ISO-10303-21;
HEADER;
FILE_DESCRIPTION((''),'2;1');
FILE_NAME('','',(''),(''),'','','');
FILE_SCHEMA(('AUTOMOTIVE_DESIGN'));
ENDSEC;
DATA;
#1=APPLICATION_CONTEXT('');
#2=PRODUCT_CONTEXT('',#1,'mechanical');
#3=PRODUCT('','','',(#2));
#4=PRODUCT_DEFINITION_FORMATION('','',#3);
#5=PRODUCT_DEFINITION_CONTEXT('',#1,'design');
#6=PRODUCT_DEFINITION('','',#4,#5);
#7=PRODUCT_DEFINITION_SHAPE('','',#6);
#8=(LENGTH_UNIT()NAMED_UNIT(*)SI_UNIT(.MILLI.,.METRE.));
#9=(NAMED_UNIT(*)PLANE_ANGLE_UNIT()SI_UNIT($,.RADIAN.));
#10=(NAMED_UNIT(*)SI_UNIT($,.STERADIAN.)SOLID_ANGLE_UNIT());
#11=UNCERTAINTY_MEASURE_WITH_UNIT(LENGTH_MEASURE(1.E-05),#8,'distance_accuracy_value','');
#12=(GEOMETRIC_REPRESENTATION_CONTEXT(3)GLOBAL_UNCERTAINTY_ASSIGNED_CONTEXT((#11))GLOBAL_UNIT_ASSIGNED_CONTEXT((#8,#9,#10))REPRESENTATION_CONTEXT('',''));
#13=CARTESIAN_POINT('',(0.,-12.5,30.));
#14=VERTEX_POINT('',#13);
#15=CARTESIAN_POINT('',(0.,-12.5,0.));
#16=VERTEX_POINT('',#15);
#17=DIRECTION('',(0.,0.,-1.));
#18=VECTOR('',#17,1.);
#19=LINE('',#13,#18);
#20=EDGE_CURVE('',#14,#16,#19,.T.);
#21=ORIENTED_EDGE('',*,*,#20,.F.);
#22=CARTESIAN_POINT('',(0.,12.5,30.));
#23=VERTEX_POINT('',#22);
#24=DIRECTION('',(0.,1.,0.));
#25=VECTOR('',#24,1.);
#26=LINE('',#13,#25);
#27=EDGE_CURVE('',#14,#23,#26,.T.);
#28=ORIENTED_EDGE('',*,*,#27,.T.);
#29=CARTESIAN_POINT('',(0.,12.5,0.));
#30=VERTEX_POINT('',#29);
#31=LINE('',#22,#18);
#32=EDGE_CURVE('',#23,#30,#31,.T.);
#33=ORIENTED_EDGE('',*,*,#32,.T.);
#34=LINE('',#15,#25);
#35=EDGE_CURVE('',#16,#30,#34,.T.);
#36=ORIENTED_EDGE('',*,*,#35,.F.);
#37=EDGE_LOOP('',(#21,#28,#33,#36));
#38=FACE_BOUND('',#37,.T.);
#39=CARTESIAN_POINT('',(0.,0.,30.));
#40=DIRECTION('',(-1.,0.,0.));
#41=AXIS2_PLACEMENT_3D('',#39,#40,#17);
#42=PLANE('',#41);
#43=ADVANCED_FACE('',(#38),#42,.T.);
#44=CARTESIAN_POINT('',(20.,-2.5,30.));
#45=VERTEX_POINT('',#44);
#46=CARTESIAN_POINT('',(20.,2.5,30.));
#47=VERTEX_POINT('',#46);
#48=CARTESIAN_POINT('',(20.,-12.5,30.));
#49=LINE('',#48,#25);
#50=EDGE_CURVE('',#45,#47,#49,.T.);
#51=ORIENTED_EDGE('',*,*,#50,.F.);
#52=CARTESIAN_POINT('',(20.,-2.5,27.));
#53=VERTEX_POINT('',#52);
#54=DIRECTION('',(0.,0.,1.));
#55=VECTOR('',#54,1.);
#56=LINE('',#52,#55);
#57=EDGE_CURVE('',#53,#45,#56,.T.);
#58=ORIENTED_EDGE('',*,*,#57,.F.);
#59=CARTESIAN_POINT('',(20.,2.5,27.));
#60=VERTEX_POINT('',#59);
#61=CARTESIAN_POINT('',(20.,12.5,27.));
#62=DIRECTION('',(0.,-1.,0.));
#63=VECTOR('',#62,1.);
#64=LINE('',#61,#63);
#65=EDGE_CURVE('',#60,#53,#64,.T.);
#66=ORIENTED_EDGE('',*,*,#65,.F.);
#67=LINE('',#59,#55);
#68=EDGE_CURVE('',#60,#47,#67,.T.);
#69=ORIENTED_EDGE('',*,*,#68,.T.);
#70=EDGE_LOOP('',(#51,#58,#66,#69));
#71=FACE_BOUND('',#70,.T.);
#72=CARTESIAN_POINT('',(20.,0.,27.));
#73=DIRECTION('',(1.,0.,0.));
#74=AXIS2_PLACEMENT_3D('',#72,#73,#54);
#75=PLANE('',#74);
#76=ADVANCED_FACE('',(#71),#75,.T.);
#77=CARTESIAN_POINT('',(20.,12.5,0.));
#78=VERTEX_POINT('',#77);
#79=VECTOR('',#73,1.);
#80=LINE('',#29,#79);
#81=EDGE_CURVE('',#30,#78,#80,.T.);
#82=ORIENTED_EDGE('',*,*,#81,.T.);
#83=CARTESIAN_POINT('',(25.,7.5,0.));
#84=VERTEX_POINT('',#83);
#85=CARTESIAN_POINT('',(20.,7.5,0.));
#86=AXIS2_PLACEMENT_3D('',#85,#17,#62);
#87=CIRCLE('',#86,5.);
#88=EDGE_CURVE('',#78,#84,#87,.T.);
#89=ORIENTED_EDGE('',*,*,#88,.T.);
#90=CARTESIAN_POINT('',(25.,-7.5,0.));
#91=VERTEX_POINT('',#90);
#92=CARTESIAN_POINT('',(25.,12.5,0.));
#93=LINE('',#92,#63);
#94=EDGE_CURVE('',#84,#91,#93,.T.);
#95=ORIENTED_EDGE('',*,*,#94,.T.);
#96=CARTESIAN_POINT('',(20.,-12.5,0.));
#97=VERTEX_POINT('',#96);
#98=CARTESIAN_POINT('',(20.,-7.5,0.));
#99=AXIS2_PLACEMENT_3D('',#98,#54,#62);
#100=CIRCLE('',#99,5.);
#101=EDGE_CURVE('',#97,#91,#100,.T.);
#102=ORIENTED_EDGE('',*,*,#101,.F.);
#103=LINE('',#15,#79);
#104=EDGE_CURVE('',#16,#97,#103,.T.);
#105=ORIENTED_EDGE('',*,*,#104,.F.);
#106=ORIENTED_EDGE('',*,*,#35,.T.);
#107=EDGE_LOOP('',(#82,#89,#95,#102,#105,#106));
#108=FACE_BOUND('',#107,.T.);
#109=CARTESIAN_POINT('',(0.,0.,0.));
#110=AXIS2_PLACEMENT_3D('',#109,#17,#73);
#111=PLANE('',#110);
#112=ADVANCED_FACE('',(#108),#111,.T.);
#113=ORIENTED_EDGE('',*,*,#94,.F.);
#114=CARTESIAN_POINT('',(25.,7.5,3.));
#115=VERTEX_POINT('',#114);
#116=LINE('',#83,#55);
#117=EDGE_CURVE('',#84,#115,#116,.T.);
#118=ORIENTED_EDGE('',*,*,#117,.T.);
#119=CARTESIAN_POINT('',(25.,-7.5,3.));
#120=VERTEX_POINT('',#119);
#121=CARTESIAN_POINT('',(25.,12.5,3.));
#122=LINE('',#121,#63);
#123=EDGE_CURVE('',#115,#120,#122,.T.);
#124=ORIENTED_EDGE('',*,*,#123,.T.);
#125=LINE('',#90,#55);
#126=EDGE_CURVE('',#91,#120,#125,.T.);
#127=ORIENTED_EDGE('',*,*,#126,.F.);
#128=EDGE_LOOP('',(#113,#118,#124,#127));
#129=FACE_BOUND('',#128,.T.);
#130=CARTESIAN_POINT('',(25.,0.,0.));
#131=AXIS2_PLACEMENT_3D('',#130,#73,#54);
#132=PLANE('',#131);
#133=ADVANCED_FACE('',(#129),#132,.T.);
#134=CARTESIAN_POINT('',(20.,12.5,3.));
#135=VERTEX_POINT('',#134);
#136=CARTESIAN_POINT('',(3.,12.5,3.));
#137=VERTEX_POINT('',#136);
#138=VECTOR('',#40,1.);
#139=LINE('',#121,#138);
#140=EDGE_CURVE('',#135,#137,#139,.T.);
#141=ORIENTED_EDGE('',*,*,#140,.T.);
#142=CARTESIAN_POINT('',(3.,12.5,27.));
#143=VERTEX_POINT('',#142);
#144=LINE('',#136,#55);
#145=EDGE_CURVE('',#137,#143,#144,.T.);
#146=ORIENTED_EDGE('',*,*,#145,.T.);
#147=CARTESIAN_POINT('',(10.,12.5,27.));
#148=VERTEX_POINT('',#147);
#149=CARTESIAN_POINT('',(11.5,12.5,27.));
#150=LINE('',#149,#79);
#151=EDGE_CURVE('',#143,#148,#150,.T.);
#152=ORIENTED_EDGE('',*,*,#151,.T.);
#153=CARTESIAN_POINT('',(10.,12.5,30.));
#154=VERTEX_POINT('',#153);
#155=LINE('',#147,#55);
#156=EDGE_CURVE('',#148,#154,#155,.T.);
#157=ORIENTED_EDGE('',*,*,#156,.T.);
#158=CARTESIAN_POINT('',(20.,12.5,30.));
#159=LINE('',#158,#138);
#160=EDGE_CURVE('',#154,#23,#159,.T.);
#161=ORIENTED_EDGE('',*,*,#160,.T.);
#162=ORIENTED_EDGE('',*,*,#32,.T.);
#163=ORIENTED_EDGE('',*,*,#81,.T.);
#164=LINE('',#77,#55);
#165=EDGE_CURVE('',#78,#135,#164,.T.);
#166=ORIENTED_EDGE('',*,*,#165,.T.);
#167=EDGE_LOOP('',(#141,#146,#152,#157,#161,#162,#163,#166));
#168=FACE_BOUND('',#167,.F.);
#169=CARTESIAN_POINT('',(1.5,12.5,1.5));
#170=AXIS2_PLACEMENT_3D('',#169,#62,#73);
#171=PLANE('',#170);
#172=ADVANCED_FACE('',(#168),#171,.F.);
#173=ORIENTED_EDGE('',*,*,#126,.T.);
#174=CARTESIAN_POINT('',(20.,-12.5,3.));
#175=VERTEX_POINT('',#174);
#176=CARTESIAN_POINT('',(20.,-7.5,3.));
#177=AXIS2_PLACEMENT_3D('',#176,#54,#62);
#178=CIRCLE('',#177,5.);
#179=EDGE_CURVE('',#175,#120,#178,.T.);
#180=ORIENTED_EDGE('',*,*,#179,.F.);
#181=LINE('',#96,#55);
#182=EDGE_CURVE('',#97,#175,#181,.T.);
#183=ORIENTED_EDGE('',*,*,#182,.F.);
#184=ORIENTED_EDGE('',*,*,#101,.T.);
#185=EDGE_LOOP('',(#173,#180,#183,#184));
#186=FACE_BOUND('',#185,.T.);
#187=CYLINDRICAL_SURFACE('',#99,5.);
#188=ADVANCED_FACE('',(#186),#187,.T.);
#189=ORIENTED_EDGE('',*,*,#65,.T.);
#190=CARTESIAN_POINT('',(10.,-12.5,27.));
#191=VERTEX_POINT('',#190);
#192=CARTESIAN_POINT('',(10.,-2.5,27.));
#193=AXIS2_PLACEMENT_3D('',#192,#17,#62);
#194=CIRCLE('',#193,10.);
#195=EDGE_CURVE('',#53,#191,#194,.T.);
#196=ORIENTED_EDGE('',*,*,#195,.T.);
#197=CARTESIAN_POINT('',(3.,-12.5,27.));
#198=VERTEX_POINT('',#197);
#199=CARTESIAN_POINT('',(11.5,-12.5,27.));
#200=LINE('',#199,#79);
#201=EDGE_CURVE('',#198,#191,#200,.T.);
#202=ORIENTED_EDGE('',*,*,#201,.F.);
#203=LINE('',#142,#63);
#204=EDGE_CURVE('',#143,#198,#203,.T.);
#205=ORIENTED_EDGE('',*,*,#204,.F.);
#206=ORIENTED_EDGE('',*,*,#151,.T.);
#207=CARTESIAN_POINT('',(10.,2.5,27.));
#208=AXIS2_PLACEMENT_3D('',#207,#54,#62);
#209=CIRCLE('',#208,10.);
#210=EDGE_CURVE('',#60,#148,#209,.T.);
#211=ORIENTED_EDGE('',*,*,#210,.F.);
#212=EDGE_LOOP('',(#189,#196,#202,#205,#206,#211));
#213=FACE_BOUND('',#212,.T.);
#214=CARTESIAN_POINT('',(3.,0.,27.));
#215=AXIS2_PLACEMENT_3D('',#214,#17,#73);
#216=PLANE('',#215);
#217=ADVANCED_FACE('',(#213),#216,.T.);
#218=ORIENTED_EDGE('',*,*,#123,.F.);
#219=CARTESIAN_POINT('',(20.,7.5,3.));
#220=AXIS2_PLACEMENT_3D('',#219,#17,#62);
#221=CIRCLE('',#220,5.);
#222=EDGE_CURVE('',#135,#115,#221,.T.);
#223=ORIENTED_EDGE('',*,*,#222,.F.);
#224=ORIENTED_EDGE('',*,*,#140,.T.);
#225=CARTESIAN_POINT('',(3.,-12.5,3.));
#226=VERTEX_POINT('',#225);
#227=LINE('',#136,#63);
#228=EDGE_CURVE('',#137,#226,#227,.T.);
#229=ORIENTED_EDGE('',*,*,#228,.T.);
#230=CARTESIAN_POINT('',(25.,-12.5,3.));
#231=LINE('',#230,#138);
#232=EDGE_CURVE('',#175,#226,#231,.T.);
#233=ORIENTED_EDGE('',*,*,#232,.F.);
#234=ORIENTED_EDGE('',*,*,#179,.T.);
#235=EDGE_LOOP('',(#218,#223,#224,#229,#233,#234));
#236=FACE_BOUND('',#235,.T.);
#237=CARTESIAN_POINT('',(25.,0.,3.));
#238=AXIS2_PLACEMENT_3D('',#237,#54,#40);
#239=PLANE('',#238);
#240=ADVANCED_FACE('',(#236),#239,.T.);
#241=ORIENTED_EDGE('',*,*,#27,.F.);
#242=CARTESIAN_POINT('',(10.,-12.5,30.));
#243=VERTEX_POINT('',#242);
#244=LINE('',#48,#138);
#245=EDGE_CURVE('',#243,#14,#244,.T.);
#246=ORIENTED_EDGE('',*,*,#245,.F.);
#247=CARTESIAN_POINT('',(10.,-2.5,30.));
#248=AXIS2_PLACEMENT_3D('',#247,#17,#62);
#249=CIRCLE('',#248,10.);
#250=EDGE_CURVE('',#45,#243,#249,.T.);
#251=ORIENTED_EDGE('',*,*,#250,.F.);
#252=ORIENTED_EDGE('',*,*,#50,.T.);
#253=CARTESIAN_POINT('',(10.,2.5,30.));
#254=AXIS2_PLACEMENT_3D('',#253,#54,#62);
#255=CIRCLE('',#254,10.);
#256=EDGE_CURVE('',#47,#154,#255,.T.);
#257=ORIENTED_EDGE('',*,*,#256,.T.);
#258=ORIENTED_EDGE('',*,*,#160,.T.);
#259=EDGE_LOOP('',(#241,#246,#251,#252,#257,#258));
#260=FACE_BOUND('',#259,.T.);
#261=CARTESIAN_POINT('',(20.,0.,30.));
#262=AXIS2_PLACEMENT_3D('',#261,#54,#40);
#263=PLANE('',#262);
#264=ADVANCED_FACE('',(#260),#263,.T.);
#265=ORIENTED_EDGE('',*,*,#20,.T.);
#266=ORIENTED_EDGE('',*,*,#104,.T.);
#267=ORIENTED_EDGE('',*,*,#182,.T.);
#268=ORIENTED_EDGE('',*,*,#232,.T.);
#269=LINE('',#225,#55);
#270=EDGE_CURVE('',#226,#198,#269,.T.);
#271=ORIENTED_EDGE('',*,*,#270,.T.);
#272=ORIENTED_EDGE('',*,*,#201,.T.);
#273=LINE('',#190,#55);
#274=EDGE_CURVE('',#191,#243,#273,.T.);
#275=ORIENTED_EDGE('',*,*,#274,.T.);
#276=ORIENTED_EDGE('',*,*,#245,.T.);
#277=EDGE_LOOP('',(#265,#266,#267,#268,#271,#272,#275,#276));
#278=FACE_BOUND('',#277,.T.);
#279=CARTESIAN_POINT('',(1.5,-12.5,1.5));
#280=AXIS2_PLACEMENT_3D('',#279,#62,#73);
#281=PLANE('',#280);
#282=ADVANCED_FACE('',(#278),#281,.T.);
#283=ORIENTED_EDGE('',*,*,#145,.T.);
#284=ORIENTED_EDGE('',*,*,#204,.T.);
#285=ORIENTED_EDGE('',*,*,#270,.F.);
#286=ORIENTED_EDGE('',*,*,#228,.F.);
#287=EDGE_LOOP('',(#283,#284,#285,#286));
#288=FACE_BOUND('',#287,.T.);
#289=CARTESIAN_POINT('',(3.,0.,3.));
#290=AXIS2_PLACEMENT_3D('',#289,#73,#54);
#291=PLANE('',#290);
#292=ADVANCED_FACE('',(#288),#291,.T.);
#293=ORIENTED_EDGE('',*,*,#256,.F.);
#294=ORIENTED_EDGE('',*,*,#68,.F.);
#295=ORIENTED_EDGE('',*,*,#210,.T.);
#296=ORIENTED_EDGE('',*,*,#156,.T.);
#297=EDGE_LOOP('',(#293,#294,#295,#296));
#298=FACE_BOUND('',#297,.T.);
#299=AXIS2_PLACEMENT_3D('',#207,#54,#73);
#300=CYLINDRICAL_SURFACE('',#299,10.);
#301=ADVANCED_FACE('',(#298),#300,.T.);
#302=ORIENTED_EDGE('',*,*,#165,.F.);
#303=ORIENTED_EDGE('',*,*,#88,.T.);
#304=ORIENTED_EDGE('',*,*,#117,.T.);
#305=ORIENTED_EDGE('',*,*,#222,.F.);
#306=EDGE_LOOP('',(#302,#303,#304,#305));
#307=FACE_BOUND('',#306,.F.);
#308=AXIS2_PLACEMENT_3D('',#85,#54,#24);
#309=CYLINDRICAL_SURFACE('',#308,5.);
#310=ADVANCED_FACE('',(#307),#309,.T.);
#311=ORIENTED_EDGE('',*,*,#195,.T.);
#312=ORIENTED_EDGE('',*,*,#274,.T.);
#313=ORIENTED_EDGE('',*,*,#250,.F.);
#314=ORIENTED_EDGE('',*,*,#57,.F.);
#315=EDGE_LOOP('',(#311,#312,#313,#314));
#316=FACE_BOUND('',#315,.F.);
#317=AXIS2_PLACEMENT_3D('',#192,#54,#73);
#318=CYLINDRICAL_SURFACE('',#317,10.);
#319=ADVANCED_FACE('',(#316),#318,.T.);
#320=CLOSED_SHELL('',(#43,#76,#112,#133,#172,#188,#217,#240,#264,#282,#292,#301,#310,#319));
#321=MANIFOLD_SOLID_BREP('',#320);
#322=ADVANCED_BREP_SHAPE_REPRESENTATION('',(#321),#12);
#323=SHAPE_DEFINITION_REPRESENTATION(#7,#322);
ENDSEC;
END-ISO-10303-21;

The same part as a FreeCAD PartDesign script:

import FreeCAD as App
import Part
import Sketcher


def edges_at(feature, points):
    """Names of the edges that pass closest to the given points."""
    edges = feature.Shape.Edges
    near = lambda p: min(range(len(edges)), key=lambda i: edges[i].distToShape(Part.Vertex(*p))[0])
    return sorted({f"Edge{near(p) + 1}" for p in points})

doc = App.newDocument("Part")
body = doc.addObject("PartDesign::Body", "Body")

sketch1 = doc.addObject("Sketcher::SketchObject", "Sketch")
body.addObject(sketch1)
sketch1.AttachmentSupport = (doc.XZ_Plane, [""])
sketch1.MapMode = "FlatFace"
sketch1.addGeometry(Part.LineSegment(App.Vector(0, 0, 0), App.Vector(25, 0, 0)), False)
sketch1.addGeometry(Part.LineSegment(App.Vector(25, 0, 0), App.Vector(25, 3, 0)), False)
sketch1.addGeometry(Part.LineSegment(App.Vector(25, 3, 0), App.Vector(3, 3, 0)), False)
sketch1.addGeometry(Part.LineSegment(App.Vector(3, 3, 0), App.Vector(3, 27, 0)), False)
sketch1.addGeometry(Part.LineSegment(App.Vector(3, 27, 0), App.Vector(20, 27, 0)), False)
sketch1.addGeometry(Part.LineSegment(App.Vector(20, 27, 0), App.Vector(20, 30, 0)), False)
sketch1.addGeometry(Part.LineSegment(App.Vector(20, 30, 0), App.Vector(0, 30, 0)), False)
sketch1.addGeometry(Part.LineSegment(App.Vector(0, 30, 0), App.Vector(0, 0, 0)), False)
sketch1.addConstraint(Sketcher.Constraint("Coincident", 0, 2, 1, 1))
sketch1.addConstraint(Sketcher.Constraint("Coincident", 1, 2, 2, 1))
sketch1.addConstraint(Sketcher.Constraint("Coincident", 2, 2, 3, 1))
sketch1.addConstraint(Sketcher.Constraint("Coincident", 3, 2, 4, 1))
sketch1.addConstraint(Sketcher.Constraint("Coincident", 4, 2, 5, 1))
sketch1.addConstraint(Sketcher.Constraint("Coincident", 5, 2, 6, 1))
sketch1.addConstraint(Sketcher.Constraint("Coincident", 6, 2, 7, 1))
sketch1.addConstraint(Sketcher.Constraint("Coincident", 7, 2, 0, 1))
sketch1.addConstraint(Sketcher.Constraint("Horizontal", 0))
sketch1.addConstraint(Sketcher.Constraint("Vertical", 1))
sketch1.addConstraint(Sketcher.Constraint("Horizontal", 2))
sketch1.addConstraint(Sketcher.Constraint("Vertical", 3))
sketch1.addConstraint(Sketcher.Constraint("Horizontal", 4))
sketch1.addConstraint(Sketcher.Constraint("Vertical", 5))
sketch1.addConstraint(Sketcher.Constraint("Horizontal", 6))
sketch1.addConstraint(Sketcher.Constraint("Vertical", 7))
sketch1.addConstraint(Sketcher.Constraint("Coincident", 7, 2, -1, 1))
sketch1.addConstraint(Sketcher.Constraint("Equal", 1, 5))
sketch1.addConstraint(Sketcher.Constraint("DistanceX", 0, 1, 0, 2, 25.0))
sketch1.addConstraint(Sketcher.Constraint("DistanceX", 2, 2, 2, 1, 22.0))
sketch1.addConstraint(Sketcher.Constraint("DistanceX", 4, 1, 4, 2, 17.0))
sketch1.addConstraint(Sketcher.Constraint("DistanceY", 1, 1, 1, 2, 3.0))
sketch1.addConstraint(Sketcher.Constraint("DistanceY", 3, 1, 3, 2, 24.0))
pad1 = doc.addObject("PartDesign::Pad", "Pad")
body.addObject(pad1)
pad1.Profile = sketch1
pad1.Length = 25
pad1.Midplane = True
doc.recompute()

fillet = doc.addObject("PartDesign::Fillet", "Fillet")
body.addObject(fillet)
fillet.Base = (pad1, edges_at(pad1, [(20, -12.5, 28.5), (20, 12.5, 28.5)]))
fillet.Radius = 10
doc.recompute()

fillet2 = doc.addObject("PartDesign::Fillet", "Fillet001")
body.addObject(fillet2)
fillet2.Base = (fillet, edges_at(fillet, [(25, -12.5, 1.5), (25, 12.5, 1.5)]))
fillet2.Radius = 5

doc.recompute()
